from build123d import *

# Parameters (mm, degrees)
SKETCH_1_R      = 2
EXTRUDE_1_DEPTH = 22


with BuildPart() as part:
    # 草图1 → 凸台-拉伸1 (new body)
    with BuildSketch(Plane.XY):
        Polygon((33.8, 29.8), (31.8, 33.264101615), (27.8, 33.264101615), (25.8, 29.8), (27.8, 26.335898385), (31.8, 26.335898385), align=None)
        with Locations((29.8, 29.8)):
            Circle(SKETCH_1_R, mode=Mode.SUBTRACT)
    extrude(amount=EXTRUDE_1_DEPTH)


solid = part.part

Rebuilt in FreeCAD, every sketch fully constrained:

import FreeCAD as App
import Part
import Sketcher
Q = App.Units.Quantity


def add_polygon(sketch, points):
    """Adds a closed chain of lines whose ends are joined by coincident constraints."""
    first, n = sketch.GeometryCount, len(points)
    for a, b in zip(points, points[1:] + points[:1]):
        sketch.addGeometry(Part.LineSegment(App.Vector(*a, 0), App.Vector(*b, 0)), False)
    for i in range(n):
        sketch.addConstraint(Sketcher.Constraint("Coincident", first + i, 2, first + (i + 1) % n, 1))

doc = App.newDocument("Part")
params = doc.addObject("Spreadsheet::Sheet", "Params")
for row, (alias, value) in enumerate([
    ("sketch1_diameter", "4 mm"),
    ("sketch1_width", "4 mm"),
    ("sketch1_length", "4 mm"),
    ("pad1_length", "22 mm"),
], start=1):
    params.set(f"A{row}", alias)
    params.set(f"B{row}", "=" + value)
    params.setAlias(f"B{row}", alias)

body = doc.addObject("PartDesign::Body", "Body")

sketch1 = doc.addObject("Sketcher::SketchObject", "Sketch")
body.addObject(sketch1)
sketch1.AttachmentSupport = (doc.XY_Plane, [""])
sketch1.MapMode = "FlatFace"
add_polygon(sketch1, [(33.8, 29.8), (31.8, 33.3), (27.8, 33.3), (25.8, 29.8), (27.8, 26.3), (31.8, 26.3)])
sketch1.addGeometry(Part.Circle(App.Vector(29.8, 29.8, 0), App.Vector(0, 0, 1), 2), False)
sketch1.addConstraint([
    Sketcher.Constraint("Horizontal", 1),
    Sketcher.Constraint("Horizontal", 4),
    Sketcher.Constraint("Parallel", 0, 3),
    Sketcher.Constraint("Parallel", 2, 5),
    Sketcher.Constraint("Horizontal", 6, 3, 2, 2),
    Sketcher.Constraint("Horizontal", 2, 2, 5, 2),
    Sketcher.Constraint("Vertical", 1, 2, 3, 2),
    Sketcher.Constraint("Vertical", 0, 2, 4, 2),
    Sketcher.Constraint("Diameter", 6, 4.0),
    Sketcher.Constraint("DistanceX", 1, 2, 1, 1, 4.0),
    Sketcher.Constraint("Angle", 0, Q("120 deg")),
    Sketcher.Constraint("Distance", 0, 4.0),
    Sketcher.Constraint("DistanceX", 6, 3, 0, 2, 2.0),
    Sketcher.Constraint("DistanceX", -1, 1, 6, 3, 29.8),
    Sketcher.Constraint("DistanceY", -1, 1, 6, 3, 29.8),
])
sketch1.setExpression("Constraints[14]", "Params.sketch1_diameter")
sketch1.setExpression("Constraints[15]", "Params.sketch1_width")
sketch1.setExpression("Constraints[17]", "Params.sketch1_length")
pad1 = doc.addObject("PartDesign::Pad", "Pad")
body.addObject(pad1)
pad1.Profile = sketch1
pad1.setExpression("Length", "Params.pad1_length")

doc.recompute()
